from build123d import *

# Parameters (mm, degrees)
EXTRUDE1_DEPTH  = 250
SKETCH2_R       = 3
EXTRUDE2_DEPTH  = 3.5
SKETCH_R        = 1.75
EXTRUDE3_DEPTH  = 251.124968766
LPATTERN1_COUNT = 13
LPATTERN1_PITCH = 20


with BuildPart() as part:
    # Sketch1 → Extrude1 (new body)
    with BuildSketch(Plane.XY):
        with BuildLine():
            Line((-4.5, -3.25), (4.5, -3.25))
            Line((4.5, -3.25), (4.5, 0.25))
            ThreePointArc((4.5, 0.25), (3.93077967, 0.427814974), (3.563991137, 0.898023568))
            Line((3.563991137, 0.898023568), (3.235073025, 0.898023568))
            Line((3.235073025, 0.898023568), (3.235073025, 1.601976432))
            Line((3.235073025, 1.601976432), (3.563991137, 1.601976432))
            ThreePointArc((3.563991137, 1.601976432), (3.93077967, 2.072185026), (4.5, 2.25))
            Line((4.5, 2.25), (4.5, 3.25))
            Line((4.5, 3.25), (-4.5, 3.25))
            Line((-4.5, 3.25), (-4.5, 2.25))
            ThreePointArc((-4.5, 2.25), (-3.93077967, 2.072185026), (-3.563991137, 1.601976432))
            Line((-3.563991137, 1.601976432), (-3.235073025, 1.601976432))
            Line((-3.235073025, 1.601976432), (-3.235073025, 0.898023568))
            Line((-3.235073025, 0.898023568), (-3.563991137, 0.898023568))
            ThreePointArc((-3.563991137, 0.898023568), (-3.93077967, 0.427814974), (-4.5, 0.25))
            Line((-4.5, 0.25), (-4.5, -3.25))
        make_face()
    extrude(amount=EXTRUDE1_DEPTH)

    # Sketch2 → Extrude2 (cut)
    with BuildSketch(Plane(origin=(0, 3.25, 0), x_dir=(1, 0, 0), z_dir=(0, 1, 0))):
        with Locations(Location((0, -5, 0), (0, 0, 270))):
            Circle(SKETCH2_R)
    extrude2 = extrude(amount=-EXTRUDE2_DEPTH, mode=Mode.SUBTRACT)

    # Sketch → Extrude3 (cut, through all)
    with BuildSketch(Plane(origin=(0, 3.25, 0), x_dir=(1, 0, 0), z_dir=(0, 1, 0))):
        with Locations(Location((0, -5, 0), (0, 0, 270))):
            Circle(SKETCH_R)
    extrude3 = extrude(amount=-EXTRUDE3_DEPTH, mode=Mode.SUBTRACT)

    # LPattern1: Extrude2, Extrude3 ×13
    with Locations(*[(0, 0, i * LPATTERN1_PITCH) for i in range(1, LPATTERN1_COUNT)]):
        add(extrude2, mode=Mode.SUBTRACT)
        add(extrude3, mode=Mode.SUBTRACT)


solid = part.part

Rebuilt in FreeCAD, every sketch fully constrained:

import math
import FreeCAD as App
import Part
import Sketcher
Q = App.Units.Quantity

doc = App.newDocument("Part")
params = doc.addObject("Spreadsheet::Sheet", "Params")
for row, (alias, value) in enumerate([
    ("sketch1_radius", "1 mm"),
    ("sketch1_width", "9 mm"),
    ("sketch1_height", "1 mm"),
    ("sketch1_height2", "3.5 mm"),
    ("pad1_length", "250 mm"),
    ("sketch2_diameter", "6 mm"),
    ("pocket1_length", "3.5 mm"),
    ("sketch3_diameter", "3.5 mm"),
    ("linearpattern_pitch", "20 mm"),
], start=1):
    params.set(f"A{row}", alias)
    params.set(f"B{row}", "=" + value)
    params.setAlias(f"B{row}", alias)

body = doc.addObject("PartDesign::Body", "Body")

sketch1 = body.newObject("Sketcher::SketchObject", "Sketch")
sketch1.AttachmentSupport = (doc.getObject("XY_Plane"), [""])
sketch1.MapMode = "FlatFace"
sketch1.addGeometry(Part.LineSegment(App.Vector(-4.5, -3.25, 0), App.Vector(4.5, -3.25, 0)), False)
sketch1.addGeometry(Part.LineSegment(App.Vector(4.5, -3.25, 0), App.Vector(4.5, 0.25, 0)), False)
sketch1.addGeometry(Part.ArcOfCircle(Part.Circle(App.Vector(4.5, 1.25, 0), App.Vector(0, 0, 1), 1), math.radians(-159), math.radians(-90)), False)
sketch1.addGeometry(Part.LineSegment(App.Vector(3.56, 0.9, 0), App.Vector(3.24, 0.9, 0)), False)
sketch1.addGeometry(Part.LineSegment(App.Vector(3.24, 0.9, 0), App.Vector(3.24, 1.6, 0)), False)
sketch1.addGeometry(Part.LineSegment(App.Vector(3.24, 1.6, 0), App.Vector(3.56, 1.6, 0)), False)
sketch1.addGeometry(Part.ArcOfCircle(Part.Circle(App.Vector(4.5, 1.25, 0), App.Vector(0, 0, 1), 1), math.radians(90), math.radians(159)), False)
sketch1.addGeometry(Part.LineSegment(App.Vector(4.5, 2.25, 0), App.Vector(4.5, 3.25, 0)), False)
sketch1.addGeometry(Part.LineSegment(App.Vector(4.5, 3.25, 0), App.Vector(-4.5, 3.25, 0)), False)
sketch1.addGeometry(Part.LineSegment(App.Vector(-4.5, 3.25, 0), App.Vector(-4.5, 2.25, 0)), False)
sketch1.addGeometry(Part.ArcOfCircle(Part.Circle(App.Vector(-4.5, 1.25, 0), App.Vector(0, 0, 1), 1), math.radians(21), math.radians(90)), False)
sketch1.addGeometry(Part.LineSegment(App.Vector(-3.56, 1.6, 0), App.Vector(-3.24, 1.6, 0)), False)
sketch1.addGeometry(Part.LineSegment(App.Vector(-3.24, 1.6, 0), App.Vector(-3.24, 0.9, 0)), False)
sketch1.addGeometry(Part.LineSegment(App.Vector(-3.24, 0.9, 0), App.Vector(-3.56, 0.9, 0)), False)
sketch1.addGeometry(Part.ArcOfCircle(Part.Circle(App.Vector(-4.5, 1.25, 0), App.Vector(0, 0, 1), 1), math.radians(-90), math.radians(-21)), False)
sketch1.addGeometry(Part.LineSegment(App.Vector(-4.5, 0.25, 0), App.Vector(-4.5, -3.25, 0)), False)
sketch1.addConstraint(Sketcher.Constraint("Coincident", 0, 2, 1, 1))
sketch1.addConstraint(Sketcher.Constraint("Coincident", 1, 2, 2, 2))
sketch1.addConstraint(Sketcher.Constraint("Coincident", 2, 1, 3, 1))
sketch1.addConstraint(Sketcher.Constraint("Coincident", 3, 2, 4, 1))
sketch1.addConstraint(Sketcher.Constraint("Coincident", 4, 2, 5, 1))
sketch1.addConstraint(Sketcher.Constraint("Coincident", 5, 2, 6, 2))
sketch1.addConstraint(Sketcher.Constraint("Coincident", 6, 1, 7, 1))
sketch1.addConstraint(Sketcher.Constraint("Coincident", 7, 2, 8, 1))
sketch1.addConstraint(Sketcher.Constraint("Coincident", 8, 2, 9, 1))
sketch1.addConstraint(Sketcher.Constraint("Coincident", 9, 2, 10, 2))
sketch1.addConstraint(Sketcher.Constraint("Coincident", 10, 1, 11, 1))
sketch1.addConstraint(Sketcher.Constraint("Coincident", 11, 2, 12, 1))
sketch1.addConstraint(Sketcher.Constraint("Coincident", 12, 2, 13, 1))
sketch1.addConstraint(Sketcher.Constraint("Coincident", 13, 2, 14, 2))
sketch1.addConstraint(Sketcher.Constraint("Coincident", 14, 1, 15, 1))
sketch1.addConstraint(Sketcher.Constraint("Coincident", 15, 2, 0, 1))
sketch1.addConstraint(Sketcher.Constraint("Horizontal", 0))
sketch1.addConstraint(Sketcher.Constraint("Vertical", 1))
sketch1.addConstraint(Sketcher.Constraint("Horizontal", 3))
sketch1.addConstraint(Sketcher.Constraint("Vertical", 4))
sketch1.addConstraint(Sketcher.Constraint("Horizontal", 5))
sketch1.addConstraint(Sketcher.Constraint("Vertical", 7))
sketch1.addConstraint(Sketcher.Constraint("Horizontal", 8))
sketch1.addConstraint(Sketcher.Constraint("Vertical", 9))
sketch1.addConstraint(Sketcher.Constraint("Horizontal", 11))
sketch1.addConstraint(Sketcher.Constraint("Vertical", 12))
sketch1.addConstraint(Sketcher.Constraint("Horizontal", 13))
sketch1.addConstraint(Sketcher.Constraint("Vertical", 15))
sketch1.addConstraint(Sketcher.Constraint("Coincident", 6, 3, 2, 3))
sketch1.addConstraint(Sketcher.Constraint("Coincident", 14, 3, 10, 3))
sketch1.addConstraint(Sketcher.Constraint("Equal", 2, 6))
sketch1.addConstraint(Sketcher.Constraint("Equal", 6, 10))
sketch1.addConstraint(Sketcher.Constraint("Equal", 10, 14))
sketch1.addConstraint(Sketcher.Constraint("Symmetric", 0, 2, 8, 2, -1, 1))
sketch1.addConstraint(Sketcher.Constraint("Symmetric", 2, 3, 10, 3, -2))
sketch1.addConstraint(Sketcher.Constraint("Symmetric", 4, 2, 11, 2, -2))
sketch1.addConstraint(Sketcher.Constraint("Horizontal", 3, 2, 12, 2))
sketch1.addConstraint(Sketcher.Constraint("Vertical", 6, 3, 0, 2))
sketch1.addConstraint(Sketcher.Constraint("Vertical", 2, 1, 5, 2))
sketch1.addConstraint(Sketcher.Constraint("Vertical", 1, 2, 6, 1))
sketch1.addConstraint(Sketcher.Constraint("Vertical", 9, 2, 14, 1))
sketch1.addConstraint(Sketcher.Constraint("Radius", 2, Q("1 mm")))
sketch1.addConstraint(Sketcher.Constraint("DistanceX", 0, 1, 0, 2, Q("9 mm")))
sketch1.addConstraint(Sketcher.Constraint("DistanceY", 7, 1, 7, 2, Q("1 mm")))
sketch1.addConstraint(Sketcher.Constraint("DistanceY", 1, 1, 1, 2, Q("3.5 mm")))
sketch1.addConstraint(Sketcher.Constraint("DistanceX", 3, 2, 3, 1, Q("0.328918 mm")))
sketch1.addConstraint(Sketcher.Constraint("DistanceY", 4, 1, 4, 2, Q("0.703953 mm")))
sketch1.setExpression("Constraints[41]", "Params.sketch1_radius")
sketch1.setExpression("Constraints[42]", "Params.sketch1_width")
sketch1.setExpression("Constraints[43]", "Params.sketch1_height")
sketch1.setExpression("Constraints[44]", "Params.sketch1_height2")
pad1 = body.newObject("PartDesign::Pad", "Pad")
pad1.Profile = sketch1
pad1.setExpression("Length", "Params.pad1_length")

sketch2 = body.newObject("Sketcher::SketchObject", "Sketch001")
sketch2.AttachmentSupport = (doc.getObject("XZ_Plane"), [""])
sketch2.MapMode = "FlatFace"
sketch2.AttachmentOffset = App.Placement(App.Vector(0, 0, -3.25), App.Rotation())
sketch2.addGeometry(Part.Circle(App.Vector(0, 5, 0), App.Vector(0, 0, 1), 3), False)
sketch2.addConstraint(Sketcher.Constraint("PointOnObject", 0, 3, -2))
sketch2.addConstraint(Sketcher.Constraint("Diameter", 0, Q("6 mm")))
sketch2.addConstraint(Sketcher.Constraint("DistanceY", -1, 1, 0, 3, Q("5 mm")))
sketch2.setExpression("Constraints[1]", "Params.sketch2_diameter")
pocket1 = body.newObject("PartDesign::Pocket", "Pocket")
pocket1.Profile = sketch2
pocket1.setExpression("Length", "Params.pocket1_length")
pocket1.Reversed = True

sketch3 = body.newObject("Sketcher::SketchObject", "Sketch002")
sketch3.AttachmentSupport = (doc.getObject("XZ_Plane"), [""])
sketch3.MapMode = "FlatFace"
sketch3.AttachmentOffset = App.Placement(App.Vector(0, 0, -3.25), App.Rotation())
sketch3.addGeometry(Part.Circle(App.Vector(0, 5, 0), App.Vector(0, 0, 1), 1.8), False)
sketch3.addConstraint(Sketcher.Constraint("PointOnObject", 0, 3, -2))
sketch3.addConstraint(Sketcher.Constraint("Diameter", 0, Q("3.5 mm")))
sketch3.addConstraint(Sketcher.Constraint("DistanceY", -1, 1, 0, 3, Q("5 mm")))
sketch3.setExpression("Constraints[1]", "Params.sketch3_diameter")
pocket2 = body.newObject("PartDesign::Pocket", "Pocket001")
pocket2.Profile = sketch3
pocket2.Type = "ThroughAll"
pocket2.Reversed = True
doc.recompute()

linearpattern = body.newObject("PartDesign::LinearPattern", "LinearPattern")
linearpattern.Originals = [pocket1, pocket2]
linearpattern.Direction = (doc.getObject("Z_Axis"), [""])
linearpattern.Mode = "offset"
linearpattern.setExpression("Offset", "Params.linearpattern_pitch")
linearpattern.Occurrences = 13
body.Tip = linearpattern

doc.recompute()
